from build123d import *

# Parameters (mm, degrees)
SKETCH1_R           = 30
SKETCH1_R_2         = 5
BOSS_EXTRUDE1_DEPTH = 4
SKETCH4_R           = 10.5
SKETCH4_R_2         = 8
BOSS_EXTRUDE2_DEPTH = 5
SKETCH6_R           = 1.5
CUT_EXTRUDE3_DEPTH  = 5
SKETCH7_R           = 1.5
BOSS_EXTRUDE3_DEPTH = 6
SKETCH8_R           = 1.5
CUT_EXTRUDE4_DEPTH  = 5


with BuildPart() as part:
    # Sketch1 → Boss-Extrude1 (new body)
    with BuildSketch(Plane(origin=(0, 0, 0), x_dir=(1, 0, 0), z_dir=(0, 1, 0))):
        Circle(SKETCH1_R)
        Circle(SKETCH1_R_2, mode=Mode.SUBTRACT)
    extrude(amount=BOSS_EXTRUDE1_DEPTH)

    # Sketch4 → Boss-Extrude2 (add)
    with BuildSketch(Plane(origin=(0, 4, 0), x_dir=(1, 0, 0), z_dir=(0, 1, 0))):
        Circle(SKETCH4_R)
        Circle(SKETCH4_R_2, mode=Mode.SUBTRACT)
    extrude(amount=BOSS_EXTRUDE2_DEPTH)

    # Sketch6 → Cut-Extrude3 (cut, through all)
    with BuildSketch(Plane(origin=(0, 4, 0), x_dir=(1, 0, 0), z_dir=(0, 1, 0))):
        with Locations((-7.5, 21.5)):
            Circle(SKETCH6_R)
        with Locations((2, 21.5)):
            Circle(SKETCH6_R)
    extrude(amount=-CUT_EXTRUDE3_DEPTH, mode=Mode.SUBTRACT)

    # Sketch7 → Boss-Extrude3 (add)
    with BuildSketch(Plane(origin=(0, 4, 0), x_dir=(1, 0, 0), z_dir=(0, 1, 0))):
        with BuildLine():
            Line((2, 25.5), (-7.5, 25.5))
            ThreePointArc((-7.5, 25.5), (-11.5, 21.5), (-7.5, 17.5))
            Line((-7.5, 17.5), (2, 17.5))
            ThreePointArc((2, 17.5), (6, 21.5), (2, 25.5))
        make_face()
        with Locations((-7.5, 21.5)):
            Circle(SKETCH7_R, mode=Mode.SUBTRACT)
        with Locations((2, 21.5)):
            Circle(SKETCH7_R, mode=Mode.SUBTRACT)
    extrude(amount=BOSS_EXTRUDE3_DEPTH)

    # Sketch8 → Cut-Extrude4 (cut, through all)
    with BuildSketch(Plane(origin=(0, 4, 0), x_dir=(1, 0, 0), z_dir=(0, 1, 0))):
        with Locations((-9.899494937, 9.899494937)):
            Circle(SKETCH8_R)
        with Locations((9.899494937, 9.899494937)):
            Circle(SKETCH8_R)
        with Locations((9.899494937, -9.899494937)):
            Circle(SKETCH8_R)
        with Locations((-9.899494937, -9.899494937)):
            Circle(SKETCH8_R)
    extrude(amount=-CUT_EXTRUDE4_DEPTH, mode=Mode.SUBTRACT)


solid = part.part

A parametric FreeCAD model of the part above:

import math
import FreeCAD as App
import Part
import Sketcher
Q = App.Units.Quantity

doc = App.newDocument("Part")
body = doc.addObject("PartDesign::Body", "Body")

sketch1 = doc.addObject("Sketcher::SketchObject", "Sketch")
body.addObject(sketch1)
sketch1.AttachmentSupport = (doc.XZ_Plane, [""])
sketch1.MapMode = "FlatFace"
sketch1.addGeometry([
    Part.Circle(App.Vector(0, 0, 0), App.Vector(0, 0, 1), 30),
    Part.Circle(App.Vector(0, 0, 0), App.Vector(0, 0, 1), 5),
], False)
sketch1.addConstraint([
    Sketcher.Constraint("Coincident", 0, 3, -1, 1),
    Sketcher.Constraint("Coincident", 1, 3, -1, 1),
    Sketcher.Constraint("Diameter", 0, Q("60 mm")),
    Sketcher.Constraint("Diameter", 1, Q("10 mm")),
])
pad1 = doc.addObject("PartDesign::Pad", "Pad")
body.addObject(pad1)
pad1.Profile = sketch1
pad1.Length = 4
pad1.Reversed = True

sketch2 = doc.addObject("Sketcher::SketchObject", "Sketch001")
body.addObject(sketch2)
sketch2.AttachmentSupport = (doc.XZ_Plane, [""])
sketch2.MapMode = "FlatFace"
sketch2.AttachmentOffset = App.Placement(App.Vector(0, 0, -4), App.Rotation())
sketch2.addGeometry([
    Part.Circle(App.Vector(0, 0, 0), App.Vector(0, 0, 1), 10.5),
    Part.Circle(App.Vector(0, 0, 0), App.Vector(0, 0, 1), 8),
], False)
sketch2.addConstraint([
    Sketcher.Constraint("Coincident", 0, 3, -1, 1),
    Sketcher.Constraint("Coincident", 1, 3, -1, 1),
    Sketcher.Constraint("Diameter", 0, Q("21 mm")),
    Sketcher.Constraint("Diameter", 1, Q("16 mm")),
])
pad2 = doc.addObject("PartDesign::Pad", "Pad001")
body.addObject(pad2)
pad2.Profile = sketch2
pad2.Length = 5
pad2.Reversed = True

sketch3 = doc.addObject("Sketcher::SketchObject", "Sketch002")
body.addObject(sketch3)
sketch3.AttachmentSupport = (doc.XZ_Plane, [""])
sketch3.MapMode = "FlatFace"
sketch3.AttachmentOffset = App.Placement(App.Vector(0, 0, -4), App.Rotation())
sketch3.addGeometry([
    Part.Circle(App.Vector(-7.5, -21.5, 0), App.Vector(0, 0, 1), 1.5),
    Part.Circle(App.Vector(2, -21.5, 0), App.Vector(0, 0, 1), 1.5),
], False)
sketch3.addConstraint([
    Sketcher.Constraint("Equal", 0, 1),
    Sketcher.Constraint("Horizontal", 0, 3, 1, 3),
    Sketcher.Constraint("Diameter", 0, Q("3 mm")),
    Sketcher.Constraint("DistanceX", -1, 1, 1, 3, Q("2 mm")),
    Sketcher.Constraint("DistanceX", 0, 3, -1, 1, Q("7.5 mm")),
    Sketcher.Constraint("DistanceY", 0, 3, -1, 1, Q("21.5 mm")),
])
pocket1 = doc.addObject("PartDesign::Pocket", "Pocket")
body.addObject(pocket1)
pocket1.Profile = sketch3
pocket1.Type = "ThroughAll"
pocket1.Reversed = True

sketch4 = doc.addObject("Sketcher::SketchObject", "Sketch003")
body.addObject(sketch4)
sketch4.AttachmentSupport = (doc.XZ_Plane, [""])
sketch4.MapMode = "FlatFace"
sketch4.AttachmentOffset = App.Placement(App.Vector(0, 0, -4), App.Rotation())
sketch4.addGeometry([
    Part.LineSegment(App.Vector(2, -25.5, 0), App.Vector(-7.5, -25.5, 0)),
    Part.ArcOfCircle(Part.Circle(App.Vector(-7.5, -21.5, 0), App.Vector(0, 0, 1), 4), math.radians(90), math.radians(270)),
    Part.LineSegment(App.Vector(-7.5, -17.5, 0), App.Vector(2, -17.5, 0)),
    Part.ArcOfCircle(Part.Circle(App.Vector(2, -21.5, 0), App.Vector(0, 0, 1), 4), math.radians(-90), math.radians(90)),
    Part.Circle(App.Vector(-7.5, -21.5, 0), App.Vector(0, 0, 1), 1.5),
    Part.Circle(App.Vector(2, -21.5, 0), App.Vector(0, 0, 1), 1.5),
], False)
sketch4.addConstraint([
    Sketcher.Constraint("Tangent", 0, 2, 1, 2),
    Sketcher.Constraint("Tangent", 1, 1, 2, 1),
    Sketcher.Constraint("Tangent", 2, 2, 3, 2),
    Sketcher.Constraint("Tangent", 3, 1, 0, 1),
    Sketcher.Constraint("Horizontal", 0),
    Sketcher.Constraint("Horizontal", 2),
    Sketcher.Constraint("Coincident", 4, 3, 1, 3),
    Sketcher.Constraint("Coincident", 5, 3, 3, 3),
    Sketcher.Constraint("Equal", 4, 5),
    Sketcher.Constraint("Diameter", 4, Q("3 mm")),
    Sketcher.Constraint("Radius", 1, Q("4 mm")),
    Sketcher.Constraint("DistanceX", 0, 2, 0, 1, Q("9.5 mm")),
    Sketcher.Constraint("DistanceX", -1, 1, 3, 3, Q("2 mm")),
    Sketcher.Constraint("DistanceY", 1, 3, -1, 1, Q("21.5 mm")),
])
pad3 = doc.addObject("PartDesign::Pad", "Pad002")
body.addObject(pad3)
pad3.Profile = sketch4
pad3.Length = 6
pad3.Reversed = True

sketch5 = doc.addObject("Sketcher::SketchObject", "Sketch004")
body.addObject(sketch5)
sketch5.AttachmentSupport = (doc.XZ_Plane, [""])
sketch5.MapMode = "FlatFace"
sketch5.AttachmentOffset = App.Placement(App.Vector(0, 0, -4), App.Rotation())
sketch5.addGeometry([
    Part.Circle(App.Vector(-9.899495, -9.899495, 0), App.Vector(0, 0, 1), 1.5),
    Part.Circle(App.Vector(9.899495, -9.899495, 0), App.Vector(0, 0, 1), 1.5),
    Part.Circle(App.Vector(9.899495, 9.899495, 0), App.Vector(0, 0, 1), 1.5),
    Part.Circle(App.Vector(-9.899495, 9.899495, 0), App.Vector(0, 0, 1), 1.5),
], False)
sketch5.addConstraint([
    Sketcher.Constraint("Equal", 0, 1),
    Sketcher.Constraint("Equal", 1, 2),
    Sketcher.Constraint("Equal", 2, 3),
    Sketcher.Constraint("Symmetric", 0, 3, 2, 3, -1, 1),
    Sketcher.Constraint("Symmetric", 1, 3, 3, 3, -1, 1),
    Sketcher.Constraint("Symmetric", 0, 3, 1, 3, -2),
    Sketcher.Constraint("Diameter", 0, Q("3 mm")),
    Sketcher.Constraint("DistanceX", 0, 3, 1, 3, Q("19.79899 mm")),
    Sketcher.Constraint("DistanceY", 1, 3, 2, 3, Q("19.79899 mm")),
])
pocket2 = doc.addObject("PartDesign::Pocket", "Pocket001")
body.addObject(pocket2)
pocket2.Profile = sketch5
pocket2.Type = "ThroughAll"
pocket2.Reversed = True

doc.recompute()
